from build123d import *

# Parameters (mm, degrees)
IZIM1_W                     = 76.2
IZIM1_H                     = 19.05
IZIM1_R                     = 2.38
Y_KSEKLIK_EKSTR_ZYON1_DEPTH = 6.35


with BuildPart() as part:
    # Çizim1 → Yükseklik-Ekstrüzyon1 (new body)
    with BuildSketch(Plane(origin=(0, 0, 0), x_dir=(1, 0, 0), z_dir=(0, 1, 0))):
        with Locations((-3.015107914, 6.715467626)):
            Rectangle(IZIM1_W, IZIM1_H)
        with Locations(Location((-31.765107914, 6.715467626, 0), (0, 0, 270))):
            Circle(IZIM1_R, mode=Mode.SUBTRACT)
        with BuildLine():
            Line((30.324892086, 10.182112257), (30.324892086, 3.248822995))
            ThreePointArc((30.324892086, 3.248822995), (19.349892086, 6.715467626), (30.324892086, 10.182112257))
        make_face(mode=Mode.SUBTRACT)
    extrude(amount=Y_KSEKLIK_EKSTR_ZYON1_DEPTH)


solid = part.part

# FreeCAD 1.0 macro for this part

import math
import FreeCAD as App
import Part
import Sketcher
from FreeCAD import Vector
Q = App.Units.Quantity

doc = App.newDocument("Part")
body = doc.addObject("PartDesign::Body", "Body")

sketch1 = body.newObject("Sketcher::SketchObject", "Sketch")
sketch1.AttachmentSupport = (doc.getObject("XZ_Plane"), [""])
sketch1.MapMode = "FlatFace"
sketch1.addGeometry(Part.LineSegment(Vector(-41.115108, -16.240468, 0), Vector(-41.115108, 2.809532, 0)), False)
sketch1.addGeometry(Part.LineSegment(Vector(-41.115108, 2.809532, 0), Vector(35.084892, 2.809532, 0)), False)
sketch1.addGeometry(Part.LineSegment(Vector(35.084892, 2.809532, 0), Vector(35.084892, -16.240468, 0)), False)
sketch1.addGeometry(Part.LineSegment(Vector(35.084892, -16.240468, 0), Vector(-41.115108, -16.240468, 0)), False)
sketch1.addGeometry(Part.Circle(Vector(-31.765108, -6.715468, 0), Vector(0, 0, 1), 2.38), False)
sketch1.addGeometry(Part.ArcOfCircle(Part.Circle(Vector(25.384892, -6.715468, 0), Vector(0, 0, 1), 6.035), math.radians(35.059256), math.radians(324.940744)), False)
sketch1.addGeometry(Part.LineSegment(Vector(30.324892, -10.182112, 0), Vector(30.324892, -3.248823, 0)), False)
sketch1.addConstraint(Sketcher.Constraint("Coincident", 0, 2, 1, 1))
sketch1.addConstraint(Sketcher.Constraint("Coincident", 1, 2, 2, 1))
sketch1.addConstraint(Sketcher.Constraint("Coincident", 2, 2, 3, 1))
sketch1.addConstraint(Sketcher.Constraint("Coincident", 3, 2, 0, 1))
sketch1.addConstraint(Sketcher.Constraint("Coincident", 5, 1, 6, 2))
sketch1.addConstraint(Sketcher.Constraint("Coincident", 6, 1, 5, 2))
sketch1.addConstraint(Sketcher.Constraint("Vertical", 0))
sketch1.addConstraint(Sketcher.Constraint("Horizontal", 1))
sketch1.addConstraint(Sketcher.Constraint("Vertical", 2))
sketch1.addConstraint(Sketcher.Constraint("Horizontal", 3))
sketch1.addConstraint(Sketcher.Constraint("Vertical", 6))
sketch1.addConstraint(Sketcher.Constraint("Horizontal", 4, 3, 5, 3))
sketch1.addConstraint(Sketcher.Constraint("DistanceX", 1, 1, 1, 2, Q("3 in")))
sketch1.addConstraint(Sketcher.Constraint("DistanceY", 0, 1, 0, 2, Q("0.75 in")))
sketch1.addConstraint(Sketcher.Constraint("Diameter", 4, 4.76))
sketch1.addConstraint(Sketcher.Constraint("Radius", 5, 6.035))
sketch1.addConstraint(Sketcher.Constraint("DistanceX", 4, 3, 5, 3, Q("2.25 in")))
sketch1.addConstraint(Sketcher.Constraint("DistanceY", 4, 3, 0, 2, Q("0.375 in")))
sketch1.addConstraint(Sketcher.Constraint("DistanceY", 6, 1, 6, 2, 6.933289))
sketch1.addConstraint(Sketcher.Constraint("DistanceX", 0, 2, 4, 3, 9.35))
sketch1.addConstraint(Sketcher.Constraint("DistanceX", 4, 3, -1, 1, 31.765108))
sketch1.addConstraint(Sketcher.Constraint("DistanceY", 4, 3, -1, 1, 6.715468))
pad1 = body.newObject("PartDesign::Pad", "Pad")
pad1.Profile = sketch1
pad1.Length = Q("0.25 in")
pad1.Reversed = True

doc.recompute()
